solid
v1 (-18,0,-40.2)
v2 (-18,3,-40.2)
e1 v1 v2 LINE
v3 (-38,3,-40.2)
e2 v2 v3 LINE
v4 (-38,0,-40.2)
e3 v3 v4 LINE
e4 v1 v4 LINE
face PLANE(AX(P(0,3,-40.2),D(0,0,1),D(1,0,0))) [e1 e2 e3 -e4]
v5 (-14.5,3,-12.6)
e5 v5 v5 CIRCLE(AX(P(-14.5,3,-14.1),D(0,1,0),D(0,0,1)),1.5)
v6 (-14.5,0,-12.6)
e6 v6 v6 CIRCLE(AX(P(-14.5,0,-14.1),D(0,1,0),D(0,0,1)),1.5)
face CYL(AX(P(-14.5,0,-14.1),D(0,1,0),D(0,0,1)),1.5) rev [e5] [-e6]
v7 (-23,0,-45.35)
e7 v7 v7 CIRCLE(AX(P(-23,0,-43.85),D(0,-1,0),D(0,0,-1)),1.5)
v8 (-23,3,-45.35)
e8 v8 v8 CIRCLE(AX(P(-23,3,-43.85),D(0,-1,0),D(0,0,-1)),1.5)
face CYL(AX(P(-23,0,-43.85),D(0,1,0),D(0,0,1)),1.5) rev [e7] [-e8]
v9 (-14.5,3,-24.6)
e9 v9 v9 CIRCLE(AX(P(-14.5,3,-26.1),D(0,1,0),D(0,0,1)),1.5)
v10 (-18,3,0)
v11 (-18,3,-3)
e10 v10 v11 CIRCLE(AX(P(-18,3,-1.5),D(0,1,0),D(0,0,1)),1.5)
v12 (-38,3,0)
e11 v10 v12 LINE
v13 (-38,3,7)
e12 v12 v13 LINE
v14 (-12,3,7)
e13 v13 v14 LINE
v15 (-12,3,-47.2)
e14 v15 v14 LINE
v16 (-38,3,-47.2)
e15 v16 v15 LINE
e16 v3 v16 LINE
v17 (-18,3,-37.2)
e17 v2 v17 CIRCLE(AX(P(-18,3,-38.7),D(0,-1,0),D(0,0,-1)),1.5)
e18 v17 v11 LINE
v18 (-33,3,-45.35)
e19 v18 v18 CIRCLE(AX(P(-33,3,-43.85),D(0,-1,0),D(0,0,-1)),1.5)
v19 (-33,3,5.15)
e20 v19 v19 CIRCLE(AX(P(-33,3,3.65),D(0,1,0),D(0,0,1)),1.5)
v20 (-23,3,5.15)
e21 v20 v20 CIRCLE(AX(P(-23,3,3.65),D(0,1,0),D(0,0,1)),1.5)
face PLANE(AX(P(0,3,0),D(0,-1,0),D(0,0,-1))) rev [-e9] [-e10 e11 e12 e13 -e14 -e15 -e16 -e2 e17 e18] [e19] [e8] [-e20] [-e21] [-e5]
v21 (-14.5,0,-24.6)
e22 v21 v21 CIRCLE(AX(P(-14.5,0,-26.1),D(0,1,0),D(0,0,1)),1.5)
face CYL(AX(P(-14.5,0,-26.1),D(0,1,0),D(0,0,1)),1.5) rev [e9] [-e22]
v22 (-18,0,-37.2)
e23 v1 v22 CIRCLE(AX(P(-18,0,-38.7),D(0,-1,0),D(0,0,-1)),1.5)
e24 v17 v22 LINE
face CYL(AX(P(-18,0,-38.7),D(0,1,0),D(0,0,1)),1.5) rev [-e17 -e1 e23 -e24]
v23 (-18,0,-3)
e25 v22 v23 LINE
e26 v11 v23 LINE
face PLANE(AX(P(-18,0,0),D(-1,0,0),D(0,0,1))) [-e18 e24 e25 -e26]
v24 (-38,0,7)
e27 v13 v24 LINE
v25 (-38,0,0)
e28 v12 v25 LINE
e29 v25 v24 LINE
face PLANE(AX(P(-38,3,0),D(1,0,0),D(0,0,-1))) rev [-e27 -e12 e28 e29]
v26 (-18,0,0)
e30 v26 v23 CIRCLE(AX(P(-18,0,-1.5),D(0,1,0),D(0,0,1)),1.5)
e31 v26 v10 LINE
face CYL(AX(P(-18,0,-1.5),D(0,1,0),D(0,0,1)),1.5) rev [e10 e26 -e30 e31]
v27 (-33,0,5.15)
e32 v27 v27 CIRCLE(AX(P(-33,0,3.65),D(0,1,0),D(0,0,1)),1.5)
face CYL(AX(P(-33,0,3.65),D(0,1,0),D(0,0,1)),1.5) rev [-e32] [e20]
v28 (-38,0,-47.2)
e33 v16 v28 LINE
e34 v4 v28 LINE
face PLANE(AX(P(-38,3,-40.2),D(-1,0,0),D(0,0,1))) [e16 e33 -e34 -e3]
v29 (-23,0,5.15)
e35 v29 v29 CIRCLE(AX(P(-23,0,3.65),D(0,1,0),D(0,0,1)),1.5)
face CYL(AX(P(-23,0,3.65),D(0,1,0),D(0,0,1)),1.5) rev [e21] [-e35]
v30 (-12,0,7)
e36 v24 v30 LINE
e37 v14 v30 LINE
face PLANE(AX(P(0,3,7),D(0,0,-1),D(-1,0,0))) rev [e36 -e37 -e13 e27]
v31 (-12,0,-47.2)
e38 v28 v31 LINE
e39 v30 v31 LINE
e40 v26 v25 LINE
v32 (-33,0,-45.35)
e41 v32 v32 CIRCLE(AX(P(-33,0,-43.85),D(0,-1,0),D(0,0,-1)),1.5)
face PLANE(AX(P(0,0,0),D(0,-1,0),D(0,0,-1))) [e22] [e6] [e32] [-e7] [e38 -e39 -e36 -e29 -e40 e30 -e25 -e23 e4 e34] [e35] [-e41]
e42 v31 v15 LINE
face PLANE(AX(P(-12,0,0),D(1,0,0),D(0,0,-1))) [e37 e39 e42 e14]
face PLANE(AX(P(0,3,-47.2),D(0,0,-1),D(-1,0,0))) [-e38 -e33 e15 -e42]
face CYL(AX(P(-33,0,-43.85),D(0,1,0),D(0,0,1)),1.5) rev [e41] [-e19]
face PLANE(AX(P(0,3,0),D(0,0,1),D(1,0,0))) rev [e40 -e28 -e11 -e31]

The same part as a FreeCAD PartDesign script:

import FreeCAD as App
import Part
import Sketcher
from FreeCAD import Vector


def edges_at(feature, points):
    """Names of the edges that pass closest to the given points."""
    edges = feature.Shape.Edges
    near = lambda p: min(range(len(edges)), key=lambda i: edges[i].distToShape(Part.Vertex(*p))[0])
    return sorted({f"Edge{near(p) + 1}" for p in points})


def add_polygon(sketch, points):
    """Adds a closed chain of lines whose ends are joined by coincident constraints."""
    first, n = sketch.GeometryCount, len(points)
    for a, b in zip(points, points[1:] + points[:1]):
        sketch.addGeometry(Part.LineSegment(App.Vector(*a, 0), App.Vector(*b, 0)), False)
    for i in range(n):
        sketch.addConstraint(Sketcher.Constraint("Coincident", first + i, 2, first + (i + 1) % n, 1))

doc = App.newDocument("Part")
body = doc.addObject("PartDesign::Body", "Body")

# Sketch on XZ plane
sketch1 = body.newObject("Sketcher::SketchObject", "Sketch")
sketch1.AttachmentSupport = (doc.getObject("XZ_Plane"), [""])
sketch1.MapMode = "FlatFace"
add_polygon(sketch1, [(-38, 0), (-38, 7), (0, 7), (0, 0)])  # lines 0-3
sketch1.addConstraint([
    Sketcher.Constraint("Vertical", 0),
    Sketcher.Constraint("Horizontal", 1),
    Sketcher.Constraint("Vertical", 2),
    Sketcher.Constraint("Horizontal", 3),
    Sketcher.Constraint("Coincident", 2, 2, -1, 1),
    Sketcher.Constraint("DistanceX", 1, 1, 1, 2, 38.0),
    Sketcher.Constraint("DistanceY", 0, 1, 0, 2, 7.0),
])
pad1 = body.newObject("PartDesign::Pad", "Pad")
pad1.Profile = sketch1
pad1.Length = 3
pad1.Reversed = True

# Sketch on XY plane
sketch2 = body.newObject("Sketcher::SketchObject", "Sketch001")
sketch2.AttachmentSupport = (doc.getObject("XY_Plane"), [""])
sketch2.MapMode = "FlatFace"
sketch2.AttachmentOffset = App.Placement(Vector(0, 0, 7), App.Rotation())
add_polygon(sketch2, [(-7, 3), (-7, 0), (0, 0), (0, 3)])  # lines 0-3
sketch2.addConstraint([
    Sketcher.Constraint("Vertical", 0),
    Sketcher.Constraint("Horizontal", 1),
    Sketcher.Constraint("Vertical", 2),
    Sketcher.Constraint("Horizontal", 3),
    Sketcher.Constraint("Coincident", 1, 2, -1, 1),
    Sketcher.Constraint("DistanceX", 1, 1, 1, 2, 7.0),
    Sketcher.Constraint("DistanceY", 0, 2, 0, 1, 3.0),
])
pad2 = body.newObject("PartDesign::Pad", "Pad001")
pad2.Profile = sketch2
pad2.Length = 13

# Sketch on XZ plane
sketch3 = body.newObject("Sketcher::SketchObject", "Sketch002")
sketch3.AttachmentSupport = (doc.getObject("XZ_Plane"), [""])
sketch3.MapMode = "FlatFace"
sketch3.AttachmentOffset = App.Placement(Vector(0, 0, -3), App.Rotation())
sketch3.addGeometry([
    Part.Circle(Vector(-3.5, 15, 0), Vector(0, 0, 1), 1.5),
    Part.Circle(Vector(-3.5, 5, 0), Vector(0, 0, 1), 1.5),
], False)
sketch3.addConstraint([
    Sketcher.Constraint("Equal", 0, 1),
    Sketcher.Constraint("Vertical", 0, 3, 1, 3),
    Sketcher.Constraint("Diameter", 0, 3.0),
    Sketcher.Constraint("DistanceY", -1, 1, 0, 3, 15.0),
    Sketcher.Constraint("DistanceY", -1, 1, 1, 3, 5.0),
    Sketcher.Constraint("DistanceX", 0, 3, -1, 1, 3.5),
])
pocket1 = body.newObject("PartDesign::Pocket", "Pocket")
pocket1.Profile = sketch3
pocket1.Type = "ThroughAll"
pocket1.Reversed = True

# Sketch on XZ plane
sketch4 = body.newObject("Sketcher::SketchObject", "Sketch003")
sketch4.AttachmentSupport = (doc.getObject("XZ_Plane"), [""])
sketch4.MapMode = "FlatFace"
sketch4.AttachmentOffset = App.Placement(Vector(0, 0, -3), App.Rotation())
sketch4.addGeometry([
    Part.Circle(Vector(-33, 3.6, 0), Vector(0, 0, 1), 1.5),
    Part.Circle(Vector(-23, 3.6, 0), Vector(0, 0, 1), 1.5),
], False)
sketch4.addConstraint([
    Sketcher.Constraint("Equal", 0, 1),
    Sketcher.Constraint("Horizontal", 0, 3, 1, 3),
    Sketcher.Constraint("Diameter", 0, 3.0),
    Sketcher.Constraint("DistanceX", 0, 3, -1, 1, 33.0),
    Sketcher.Constraint("DistanceX", 1, 3, -1, 1, 23.0),
    Sketcher.Constraint("DistanceY", -1, 1, 0, 3, 3.65),
])
pocket2 = body.newObject("PartDesign::Pocket", "Pocket001")
pocket2.Profile = sketch4
pocket2.Type = "ThroughAll"
pocket2.Reversed = True

# Sketch on XZ plane
sketch5 = body.newObject("Sketcher::SketchObject", "Sketch004")
sketch5.AttachmentSupport = (doc.getObject("XZ_Plane"), [""])
sketch5.MapMode = "FlatFace"
sketch5.AttachmentOffset = App.Placement(Vector(0, 0, -3), App.Rotation())
add_polygon(sketch5, [(-18, -40), (-18, 0), (-13, 0), (-13, -40)])  # lines 0-3
sketch5.addConstraint([
    Sketcher.Constraint("Vertical", 0),
    Sketcher.Constraint("Horizontal", 1),
    Sketcher.Constraint("Vertical", 2),
    Sketcher.Constraint("Horizontal", 3),
    Sketcher.Constraint("PointOnObject", 0, 2, -1),
    Sketcher.Constraint("DistanceX", 1, 1, 1, 2, 5.0),
    Sketcher.Constraint("DistanceY", 0, 1, 0, 2, 40.2),
    Sketcher.Constraint("DistanceX", 0, 2, -1, 1, 18.0),
])
pad3 = body.newObject("PartDesign::Pad", "Pad002")
pad3.Profile = sketch5
pad3.Length = 3

# Sketch on XZ plane
sketch6 = body.newObject("Sketcher::SketchObject", "Sketch005")
sketch6.AttachmentSupport = (doc.getObject("XZ_Plane"), [""])
sketch6.MapMode = "FlatFace"
sketch6.AttachmentOffset = App.Placement(Vector(0, 0, -3), App.Rotation())
sketch6.addGeometry(Part.Circle(Vector(-18, -1.5, 0), Vector(0, 0, 1), 1.5), False)
sketch6.addConstraint([
    Sketcher.Constraint("Diameter", 0, 3.0),
    Sketcher.Constraint("DistanceX", 0, 3, -1, 1, 18.0),
    Sketcher.Constraint("DistanceY", 0, 3, -1, 1, 1.5),
])
pocket3 = body.newObject("PartDesign::Pocket", "Pocket002")
pocket3.Profile = sketch6
pocket3.Type = "ThroughAll"
pocket3.Reversed = True
doc.recompute()

fillet = body.newObject("PartDesign::Fillet", "Fillet")
fillet.Base = (pocket3, edges_at(pocket3, [(-7, 1.5, 7)]))
fillet.Radius = 5
doc.recompute()

fillet2 = body.newObject("PartDesign::Fillet", "Fillet001")
fillet2.Base = (fillet, edges_at(fillet, [(-13, 1.5, 0)]))
fillet2.Radius = 5
doc.recompute()

datumplane = body.newObject("PartDesign::Plane", "DatumPlane")
datumplane.AttachmentSupport = (doc.getObject("XY_Plane"), [""])
datumplane.MapMode = "FlatFace"
datumplane.AttachmentOffset = App.Placement(Vector(0, 0, -20.1), App.Rotation())
mirrored = body.newObject("PartDesign::Mirrored", "Mirrored")
mirrored.Originals = [pad1, pocket2, pocket3]
mirrored.MirrorPlane = (datumplane, [""])
body.Tip = mirrored
doc.recompute()

fillet3 = body.newObject("PartDesign::Fillet", "Fillet002")
fillet3.Base = (mirrored, edges_at(mirrored, [(-13, 1.5, -40.2)]))
fillet3.Radius = 5

# Sketch on YZ plane
sketch7 = body.newObject("Sketcher::SketchObject", "Sketch006")
sketch7.AttachmentSupport = (doc.getObject("YZ_Plane"), [""])
sketch7.MapMode = "FlatFace"
add_polygon(sketch7, [(5, 26), (0, 26), (0, -47), (5, -47)])  # lines 0-3
sketch7.addConstraint([
    Sketcher.Constraint("Horizontal", 0),
    Sketcher.Constraint("Vertical", 1),
    Sketcher.Constraint("Horizontal", 2),
    Sketcher.Constraint("Vertical", 3),
    Sketcher.Constraint("PointOnObject", 0, 2, -2),
    Sketcher.Constraint("DistanceY", 1, 2, -1, 1, 47.2),
    Sketcher.Constraint("DistanceX", 0, 2, 0, 1, 5.118382),
    Sketcher.Constraint("DistanceY", 1, 2, 1, 1, 73.096836),
])
pocket4 = body.newObject("PartDesign::Pocket", "Pocket003")
pocket4.Profile = sketch7
pocket4.Length = 13

# Sketch on YZ plane
sketch8 = body.newObject("Sketcher::SketchObject", "Sketch007")
sketch8.AttachmentSupport = (doc.getObject("YZ_Plane"), [""])
sketch8.MapMode = "FlatFace"
sketch8.AttachmentOffset = App.Placement(Vector(0, 0, -13), App.Rotation())
add_polygon(sketch8, [(3, 7), (0, 7), (0, -47.2), (3, -47.2)])  # lines 0-3
sketch8.addConstraint([
    Sketcher.Constraint("Horizontal", 0),
    Sketcher.Constraint("Vertical", 1),
    Sketcher.Constraint("Horizontal", 2),
    Sketcher.Constraint("Vertical", 3),
    Sketcher.Constraint("PointOnObject", 0, 2, -2),
    Sketcher.Constraint("DistanceX", 0, 2, 0, 1, 3.0),
    Sketcher.Constraint("DistanceY", 1, 2, 1, 1, 54.2),
    Sketcher.Constraint("DistanceY", -1, 1, 0, 2, 7.0),
])
pad4 = body.newObject("PartDesign::Pad", "Pad003")
pad4.Profile = sketch8
pad4.Length = 1

# Sketch on XZ plane
sketch9 = body.newObject("Sketcher::SketchObject", "Sketch008")
sketch9.AttachmentSupport = (doc.getObject("XZ_Plane"), [""])
sketch9.MapMode = "FlatFace"
sketch9.AttachmentOffset = App.Placement(Vector(0, 0, -3), App.Rotation())
sketch9.addGeometry([
    Part.Circle(Vector(-14.5, -14.1, 0), Vector(0, 0, 1), 1.5),
    Part.Circle(Vector(-14.5, -26.1, 0), Vector(0, 0, 1), 1.5),
], False)
sketch9.addConstraint([
    Sketcher.Constraint("Equal", 0, 1),
    Sketcher.Constraint("Vertical", 0, 3, 1, 3),
    Sketcher.Constraint("Diameter", 0, 3.0),
    Sketcher.Constraint("DistanceY", 1, 3, 0, 3, 12.0),
    Sketcher.Constraint("DistanceX", 0, 3, -1, 1, 14.5),
    Sketcher.Constraint("DistanceY", 0, 3, -1, 1, 14.1),
])
pocket5 = body.newObject("PartDesign::Pocket", "Pocket004")
pocket5.Profile = sketch9
pocket5.Type = "ThroughAll"
pocket5.Reversed = True

doc.recompute()
